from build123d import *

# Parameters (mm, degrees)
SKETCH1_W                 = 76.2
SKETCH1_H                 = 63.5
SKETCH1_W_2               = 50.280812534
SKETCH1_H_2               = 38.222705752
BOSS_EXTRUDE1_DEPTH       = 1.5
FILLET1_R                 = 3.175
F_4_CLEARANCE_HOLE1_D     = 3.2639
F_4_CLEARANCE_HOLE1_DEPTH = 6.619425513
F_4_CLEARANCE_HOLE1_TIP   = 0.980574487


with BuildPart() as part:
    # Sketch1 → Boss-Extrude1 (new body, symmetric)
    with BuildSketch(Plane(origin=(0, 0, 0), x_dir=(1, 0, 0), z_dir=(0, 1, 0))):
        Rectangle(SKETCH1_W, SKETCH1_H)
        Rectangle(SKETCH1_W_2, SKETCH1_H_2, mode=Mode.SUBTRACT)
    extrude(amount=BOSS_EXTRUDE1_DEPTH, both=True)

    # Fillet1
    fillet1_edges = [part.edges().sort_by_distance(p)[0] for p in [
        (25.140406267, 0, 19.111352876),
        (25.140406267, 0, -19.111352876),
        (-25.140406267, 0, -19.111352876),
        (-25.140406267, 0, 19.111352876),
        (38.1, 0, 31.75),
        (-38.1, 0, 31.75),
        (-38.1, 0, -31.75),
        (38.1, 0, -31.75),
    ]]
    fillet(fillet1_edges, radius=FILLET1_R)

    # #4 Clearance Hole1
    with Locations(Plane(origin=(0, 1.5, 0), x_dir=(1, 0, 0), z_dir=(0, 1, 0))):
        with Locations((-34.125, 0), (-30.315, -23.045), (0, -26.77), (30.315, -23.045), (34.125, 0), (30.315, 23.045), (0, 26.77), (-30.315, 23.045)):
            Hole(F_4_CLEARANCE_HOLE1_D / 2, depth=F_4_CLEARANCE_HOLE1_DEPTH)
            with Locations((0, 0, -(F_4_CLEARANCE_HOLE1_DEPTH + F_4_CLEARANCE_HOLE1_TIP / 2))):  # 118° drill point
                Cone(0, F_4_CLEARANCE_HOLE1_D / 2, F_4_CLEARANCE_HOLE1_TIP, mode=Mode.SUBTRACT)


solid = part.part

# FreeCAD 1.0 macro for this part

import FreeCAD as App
import Part
import Sketcher
from FreeCAD import Vector
Q = App.Units.Quantity


def edges_at(feature, points):
    """Names of the edges that pass closest to the given points."""
    edges = feature.Shape.Edges
    near = lambda p: min(range(len(edges)), key=lambda i: edges[i].distToShape(Part.Vertex(*p))[0])
    return sorted({f"Edge{near(p) + 1}" for p in points})

doc = App.newDocument("Part")
params = doc.addObject("Spreadsheet::Sheet", "Params")
for row, (alias, value) in enumerate([
    ("sketch1_width", "3 in"),
    ("sketch1_height", "2.5 in"),
    ("pad1_length", "3 mm"),
    ("fillet_radius", "0.125 in"),
    ("hole_diameter", "0.1285 in"),
    ("hole_depth", "6.619426 mm"),
], start=1):
    params.set(f"A{row}", alias)
    params.set(f"B{row}", "=" + value)
    params.setAlias(f"B{row}", alias)

body = doc.addObject("PartDesign::Body", "Body")

# Sketch on XZ plane
sketch1 = doc.addObject("Sketcher::SketchObject", "Sketch")
body.addObject(sketch1)
sketch1.AttachmentSupport = (doc.XZ_Plane, [""])
sketch1.MapMode = "FlatFace"
sketch1.addGeometry([
    Part.LineSegment(Vector(-38.1, -31.75, 0), Vector(-38.1, 31.75, 0)),  # 0
    Part.LineSegment(Vector(-38.1, 31.75, 0), Vector(38.1, 31.75, 0)),  # 1
    Part.LineSegment(Vector(38.1, 31.75, 0), Vector(38.1, -31.75, 0)),  # 2
    Part.LineSegment(Vector(38.1, -31.75, 0), Vector(-38.1, -31.75, 0)),  # 3
    Part.LineSegment(Vector(25.140406, 19.111353, 0), Vector(-25.140406, 19.111353, 0)),  # 4
    Part.LineSegment(Vector(-25.140406, 19.111353, 0), Vector(-25.140406, -19.111353, 0)),  # 5
    Part.LineSegment(Vector(-25.140406, -19.111353, 0), Vector(25.140406, -19.111353, 0)),  # 6
    Part.LineSegment(Vector(25.140406, -19.111353, 0), Vector(25.140406, 19.111353, 0)),  # 7
], False)
sketch1.addConstraint([
    Sketcher.Constraint("Coincident", 0, 2, 1, 1),
    Sketcher.Constraint("Coincident", 1, 2, 2, 1),
    Sketcher.Constraint("Coincident", 2, 2, 3, 1),
    Sketcher.Constraint("Coincident", 3, 2, 0, 1),
    Sketcher.Constraint("Coincident", 4, 2, 5, 1),
    Sketcher.Constraint("Coincident", 5, 2, 6, 1),
    Sketcher.Constraint("Coincident", 6, 2, 7, 1),
    Sketcher.Constraint("Coincident", 7, 2, 4, 1),
    Sketcher.Constraint("Vertical", 0),
    Sketcher.Constraint("Horizontal", 1),
    Sketcher.Constraint("Vertical", 2),
    Sketcher.Constraint("Horizontal", 3),
    Sketcher.Constraint("Horizontal", 4),
    Sketcher.Constraint("Vertical", 5),
    Sketcher.Constraint("Horizontal", 6),
    Sketcher.Constraint("Vertical", 7),
    Sketcher.Constraint("Symmetric", 0, 2, 2, 2, -1, 1),
    Sketcher.Constraint("Symmetric", 4, 2, 6, 2, -1, 1),
    Sketcher.Constraint("DistanceX", 1, 1, 1, 2, Q("3 in")),
    Sketcher.Constraint("DistanceY", 0, 1, 0, 2, Q("2.5 in")),
    Sketcher.Constraint("DistanceX", 4, 2, 4, 1, Q("50.280813 mm")),
    Sketcher.Constraint("DistanceY", 5, 2, 5, 1, Q("38.222706 mm")),
])
sketch1.setExpression("Constraints[18]", "Params.sketch1_width")
sketch1.setExpression("Constraints[19]", "Params.sketch1_height")
pad1 = doc.addObject("PartDesign::Pad", "Pad")
body.addObject(pad1)
pad1.Profile = sketch1
pad1.setExpression("Length", "Params.pad1_length")
pad1.Midplane = True
doc.recompute()

fillet = doc.addObject("PartDesign::Fillet", "Fillet")
body.addObject(fillet)
fillet.Base = (pad1, edges_at(pad1, [
    (25.14, 0, 19.111),
    (25.14, 0, -19.111),
    (-25.14, 0, -19.111),
    (-25.14, 0, 19.111),
    (38.1, 0, 31.75),
    (-38.1, 0, 31.75),
    (-38.1, 0, -31.75),
    (38.1, 0, -31.75),
]))
fillet.setExpression("Radius", "Params.fillet_radius")

# Sketch on XZ plane
sketch2 = doc.addObject("Sketcher::SketchObject", "Sketch001")
body.addObject(sketch2)
sketch2.AttachmentSupport = (doc.XZ_Plane, [""])
sketch2.MapMode = "FlatFace"
sketch2.AttachmentOffset = App.Placement(Vector(0, 0, -1.5), App.Rotation())
sketch2.addGeometry([
    Part.Circle(Vector(-34.125, 0, 0), Vector(0, 0, 1), 1.63195),  # 0
    Part.Circle(Vector(-30.315, 23.045, 0), Vector(0, 0, 1), 1.63195),  # 1
    Part.Circle(Vector(0, 26.77, 0), Vector(0, 0, 1), 1.63195),  # 2
    Part.Circle(Vector(30.315, 23.045, 0), Vector(0, 0, 1), 1.63195),  # 3
    Part.Circle(Vector(34.125, 0, 0), Vector(0, 0, 1), 1.63195),  # 4
    Part.Circle(Vector(30.315, -23.045, 0), Vector(0, 0, 1), 1.63195),  # 5
    Part.Circle(Vector(0, -26.77, 0), Vector(0, 0, 1), 1.63195),  # 6
    Part.Circle(Vector(-30.315, -23.045, 0), Vector(0, 0, 1), 1.63195),  # 7
], False)
sketch2.addConstraint([
    Sketcher.Constraint("Equal", 0, 1),
    Sketcher.Constraint("Equal", 1, 2),
    Sketcher.Constraint("Equal", 2, 3),
    Sketcher.Constraint("Equal", 3, 4),
    Sketcher.Constraint("Equal", 4, 5),
    Sketcher.Constraint("Equal", 5, 6),
    Sketcher.Constraint("Equal", 6, 7),
    Sketcher.Constraint("Symmetric", 0, 3, 4, 3, -1, 1),
    Sketcher.Constraint("Symmetric", 1, 3, 5, 3, -1, 1),
    Sketcher.Constraint("Symmetric", 2, 3, 6, 3, -1, 1),
    Sketcher.Constraint("Symmetric", 3, 3, 7, 3, -1, 1),
    Sketcher.Constraint("Symmetric", 1, 3, 3, 3, -2),
    Sketcher.Constraint("PointOnObject", 0, 3, -1),
    Sketcher.Constraint("PointOnObject", 2, 3, -2),
    Sketcher.Constraint("Diameter", 0, Q("0.1285 in")),
    Sketcher.Constraint("DistanceX", 0, 3, 1, 3, Q("0.15 in")),
    Sketcher.Constraint("DistanceX", 0, 3, -1, 1, Q("34.125 mm")),
    Sketcher.Constraint("DistanceY", -1, 1, 1, 3, Q("23.045 mm")),
    Sketcher.Constraint("DistanceY", -1, 1, 2, 3, Q("26.77 mm")),
])
doc.recompute()
hole = doc.addObject("PartDesign::Hole", "Hole")
body.addObject(hole)
hole.Profile = sketch2
hole.ThreadType = "None"
hole.setExpression("Diameter", "Params.hole_diameter")
hole.DepthType = "Dimension"
hole.setExpression("Depth", "Params.hole_depth")
hole.DrillPoint = "Angled"
hole.DrillPointAngle = 118
hole.Reversed = True

doc.recompute()
